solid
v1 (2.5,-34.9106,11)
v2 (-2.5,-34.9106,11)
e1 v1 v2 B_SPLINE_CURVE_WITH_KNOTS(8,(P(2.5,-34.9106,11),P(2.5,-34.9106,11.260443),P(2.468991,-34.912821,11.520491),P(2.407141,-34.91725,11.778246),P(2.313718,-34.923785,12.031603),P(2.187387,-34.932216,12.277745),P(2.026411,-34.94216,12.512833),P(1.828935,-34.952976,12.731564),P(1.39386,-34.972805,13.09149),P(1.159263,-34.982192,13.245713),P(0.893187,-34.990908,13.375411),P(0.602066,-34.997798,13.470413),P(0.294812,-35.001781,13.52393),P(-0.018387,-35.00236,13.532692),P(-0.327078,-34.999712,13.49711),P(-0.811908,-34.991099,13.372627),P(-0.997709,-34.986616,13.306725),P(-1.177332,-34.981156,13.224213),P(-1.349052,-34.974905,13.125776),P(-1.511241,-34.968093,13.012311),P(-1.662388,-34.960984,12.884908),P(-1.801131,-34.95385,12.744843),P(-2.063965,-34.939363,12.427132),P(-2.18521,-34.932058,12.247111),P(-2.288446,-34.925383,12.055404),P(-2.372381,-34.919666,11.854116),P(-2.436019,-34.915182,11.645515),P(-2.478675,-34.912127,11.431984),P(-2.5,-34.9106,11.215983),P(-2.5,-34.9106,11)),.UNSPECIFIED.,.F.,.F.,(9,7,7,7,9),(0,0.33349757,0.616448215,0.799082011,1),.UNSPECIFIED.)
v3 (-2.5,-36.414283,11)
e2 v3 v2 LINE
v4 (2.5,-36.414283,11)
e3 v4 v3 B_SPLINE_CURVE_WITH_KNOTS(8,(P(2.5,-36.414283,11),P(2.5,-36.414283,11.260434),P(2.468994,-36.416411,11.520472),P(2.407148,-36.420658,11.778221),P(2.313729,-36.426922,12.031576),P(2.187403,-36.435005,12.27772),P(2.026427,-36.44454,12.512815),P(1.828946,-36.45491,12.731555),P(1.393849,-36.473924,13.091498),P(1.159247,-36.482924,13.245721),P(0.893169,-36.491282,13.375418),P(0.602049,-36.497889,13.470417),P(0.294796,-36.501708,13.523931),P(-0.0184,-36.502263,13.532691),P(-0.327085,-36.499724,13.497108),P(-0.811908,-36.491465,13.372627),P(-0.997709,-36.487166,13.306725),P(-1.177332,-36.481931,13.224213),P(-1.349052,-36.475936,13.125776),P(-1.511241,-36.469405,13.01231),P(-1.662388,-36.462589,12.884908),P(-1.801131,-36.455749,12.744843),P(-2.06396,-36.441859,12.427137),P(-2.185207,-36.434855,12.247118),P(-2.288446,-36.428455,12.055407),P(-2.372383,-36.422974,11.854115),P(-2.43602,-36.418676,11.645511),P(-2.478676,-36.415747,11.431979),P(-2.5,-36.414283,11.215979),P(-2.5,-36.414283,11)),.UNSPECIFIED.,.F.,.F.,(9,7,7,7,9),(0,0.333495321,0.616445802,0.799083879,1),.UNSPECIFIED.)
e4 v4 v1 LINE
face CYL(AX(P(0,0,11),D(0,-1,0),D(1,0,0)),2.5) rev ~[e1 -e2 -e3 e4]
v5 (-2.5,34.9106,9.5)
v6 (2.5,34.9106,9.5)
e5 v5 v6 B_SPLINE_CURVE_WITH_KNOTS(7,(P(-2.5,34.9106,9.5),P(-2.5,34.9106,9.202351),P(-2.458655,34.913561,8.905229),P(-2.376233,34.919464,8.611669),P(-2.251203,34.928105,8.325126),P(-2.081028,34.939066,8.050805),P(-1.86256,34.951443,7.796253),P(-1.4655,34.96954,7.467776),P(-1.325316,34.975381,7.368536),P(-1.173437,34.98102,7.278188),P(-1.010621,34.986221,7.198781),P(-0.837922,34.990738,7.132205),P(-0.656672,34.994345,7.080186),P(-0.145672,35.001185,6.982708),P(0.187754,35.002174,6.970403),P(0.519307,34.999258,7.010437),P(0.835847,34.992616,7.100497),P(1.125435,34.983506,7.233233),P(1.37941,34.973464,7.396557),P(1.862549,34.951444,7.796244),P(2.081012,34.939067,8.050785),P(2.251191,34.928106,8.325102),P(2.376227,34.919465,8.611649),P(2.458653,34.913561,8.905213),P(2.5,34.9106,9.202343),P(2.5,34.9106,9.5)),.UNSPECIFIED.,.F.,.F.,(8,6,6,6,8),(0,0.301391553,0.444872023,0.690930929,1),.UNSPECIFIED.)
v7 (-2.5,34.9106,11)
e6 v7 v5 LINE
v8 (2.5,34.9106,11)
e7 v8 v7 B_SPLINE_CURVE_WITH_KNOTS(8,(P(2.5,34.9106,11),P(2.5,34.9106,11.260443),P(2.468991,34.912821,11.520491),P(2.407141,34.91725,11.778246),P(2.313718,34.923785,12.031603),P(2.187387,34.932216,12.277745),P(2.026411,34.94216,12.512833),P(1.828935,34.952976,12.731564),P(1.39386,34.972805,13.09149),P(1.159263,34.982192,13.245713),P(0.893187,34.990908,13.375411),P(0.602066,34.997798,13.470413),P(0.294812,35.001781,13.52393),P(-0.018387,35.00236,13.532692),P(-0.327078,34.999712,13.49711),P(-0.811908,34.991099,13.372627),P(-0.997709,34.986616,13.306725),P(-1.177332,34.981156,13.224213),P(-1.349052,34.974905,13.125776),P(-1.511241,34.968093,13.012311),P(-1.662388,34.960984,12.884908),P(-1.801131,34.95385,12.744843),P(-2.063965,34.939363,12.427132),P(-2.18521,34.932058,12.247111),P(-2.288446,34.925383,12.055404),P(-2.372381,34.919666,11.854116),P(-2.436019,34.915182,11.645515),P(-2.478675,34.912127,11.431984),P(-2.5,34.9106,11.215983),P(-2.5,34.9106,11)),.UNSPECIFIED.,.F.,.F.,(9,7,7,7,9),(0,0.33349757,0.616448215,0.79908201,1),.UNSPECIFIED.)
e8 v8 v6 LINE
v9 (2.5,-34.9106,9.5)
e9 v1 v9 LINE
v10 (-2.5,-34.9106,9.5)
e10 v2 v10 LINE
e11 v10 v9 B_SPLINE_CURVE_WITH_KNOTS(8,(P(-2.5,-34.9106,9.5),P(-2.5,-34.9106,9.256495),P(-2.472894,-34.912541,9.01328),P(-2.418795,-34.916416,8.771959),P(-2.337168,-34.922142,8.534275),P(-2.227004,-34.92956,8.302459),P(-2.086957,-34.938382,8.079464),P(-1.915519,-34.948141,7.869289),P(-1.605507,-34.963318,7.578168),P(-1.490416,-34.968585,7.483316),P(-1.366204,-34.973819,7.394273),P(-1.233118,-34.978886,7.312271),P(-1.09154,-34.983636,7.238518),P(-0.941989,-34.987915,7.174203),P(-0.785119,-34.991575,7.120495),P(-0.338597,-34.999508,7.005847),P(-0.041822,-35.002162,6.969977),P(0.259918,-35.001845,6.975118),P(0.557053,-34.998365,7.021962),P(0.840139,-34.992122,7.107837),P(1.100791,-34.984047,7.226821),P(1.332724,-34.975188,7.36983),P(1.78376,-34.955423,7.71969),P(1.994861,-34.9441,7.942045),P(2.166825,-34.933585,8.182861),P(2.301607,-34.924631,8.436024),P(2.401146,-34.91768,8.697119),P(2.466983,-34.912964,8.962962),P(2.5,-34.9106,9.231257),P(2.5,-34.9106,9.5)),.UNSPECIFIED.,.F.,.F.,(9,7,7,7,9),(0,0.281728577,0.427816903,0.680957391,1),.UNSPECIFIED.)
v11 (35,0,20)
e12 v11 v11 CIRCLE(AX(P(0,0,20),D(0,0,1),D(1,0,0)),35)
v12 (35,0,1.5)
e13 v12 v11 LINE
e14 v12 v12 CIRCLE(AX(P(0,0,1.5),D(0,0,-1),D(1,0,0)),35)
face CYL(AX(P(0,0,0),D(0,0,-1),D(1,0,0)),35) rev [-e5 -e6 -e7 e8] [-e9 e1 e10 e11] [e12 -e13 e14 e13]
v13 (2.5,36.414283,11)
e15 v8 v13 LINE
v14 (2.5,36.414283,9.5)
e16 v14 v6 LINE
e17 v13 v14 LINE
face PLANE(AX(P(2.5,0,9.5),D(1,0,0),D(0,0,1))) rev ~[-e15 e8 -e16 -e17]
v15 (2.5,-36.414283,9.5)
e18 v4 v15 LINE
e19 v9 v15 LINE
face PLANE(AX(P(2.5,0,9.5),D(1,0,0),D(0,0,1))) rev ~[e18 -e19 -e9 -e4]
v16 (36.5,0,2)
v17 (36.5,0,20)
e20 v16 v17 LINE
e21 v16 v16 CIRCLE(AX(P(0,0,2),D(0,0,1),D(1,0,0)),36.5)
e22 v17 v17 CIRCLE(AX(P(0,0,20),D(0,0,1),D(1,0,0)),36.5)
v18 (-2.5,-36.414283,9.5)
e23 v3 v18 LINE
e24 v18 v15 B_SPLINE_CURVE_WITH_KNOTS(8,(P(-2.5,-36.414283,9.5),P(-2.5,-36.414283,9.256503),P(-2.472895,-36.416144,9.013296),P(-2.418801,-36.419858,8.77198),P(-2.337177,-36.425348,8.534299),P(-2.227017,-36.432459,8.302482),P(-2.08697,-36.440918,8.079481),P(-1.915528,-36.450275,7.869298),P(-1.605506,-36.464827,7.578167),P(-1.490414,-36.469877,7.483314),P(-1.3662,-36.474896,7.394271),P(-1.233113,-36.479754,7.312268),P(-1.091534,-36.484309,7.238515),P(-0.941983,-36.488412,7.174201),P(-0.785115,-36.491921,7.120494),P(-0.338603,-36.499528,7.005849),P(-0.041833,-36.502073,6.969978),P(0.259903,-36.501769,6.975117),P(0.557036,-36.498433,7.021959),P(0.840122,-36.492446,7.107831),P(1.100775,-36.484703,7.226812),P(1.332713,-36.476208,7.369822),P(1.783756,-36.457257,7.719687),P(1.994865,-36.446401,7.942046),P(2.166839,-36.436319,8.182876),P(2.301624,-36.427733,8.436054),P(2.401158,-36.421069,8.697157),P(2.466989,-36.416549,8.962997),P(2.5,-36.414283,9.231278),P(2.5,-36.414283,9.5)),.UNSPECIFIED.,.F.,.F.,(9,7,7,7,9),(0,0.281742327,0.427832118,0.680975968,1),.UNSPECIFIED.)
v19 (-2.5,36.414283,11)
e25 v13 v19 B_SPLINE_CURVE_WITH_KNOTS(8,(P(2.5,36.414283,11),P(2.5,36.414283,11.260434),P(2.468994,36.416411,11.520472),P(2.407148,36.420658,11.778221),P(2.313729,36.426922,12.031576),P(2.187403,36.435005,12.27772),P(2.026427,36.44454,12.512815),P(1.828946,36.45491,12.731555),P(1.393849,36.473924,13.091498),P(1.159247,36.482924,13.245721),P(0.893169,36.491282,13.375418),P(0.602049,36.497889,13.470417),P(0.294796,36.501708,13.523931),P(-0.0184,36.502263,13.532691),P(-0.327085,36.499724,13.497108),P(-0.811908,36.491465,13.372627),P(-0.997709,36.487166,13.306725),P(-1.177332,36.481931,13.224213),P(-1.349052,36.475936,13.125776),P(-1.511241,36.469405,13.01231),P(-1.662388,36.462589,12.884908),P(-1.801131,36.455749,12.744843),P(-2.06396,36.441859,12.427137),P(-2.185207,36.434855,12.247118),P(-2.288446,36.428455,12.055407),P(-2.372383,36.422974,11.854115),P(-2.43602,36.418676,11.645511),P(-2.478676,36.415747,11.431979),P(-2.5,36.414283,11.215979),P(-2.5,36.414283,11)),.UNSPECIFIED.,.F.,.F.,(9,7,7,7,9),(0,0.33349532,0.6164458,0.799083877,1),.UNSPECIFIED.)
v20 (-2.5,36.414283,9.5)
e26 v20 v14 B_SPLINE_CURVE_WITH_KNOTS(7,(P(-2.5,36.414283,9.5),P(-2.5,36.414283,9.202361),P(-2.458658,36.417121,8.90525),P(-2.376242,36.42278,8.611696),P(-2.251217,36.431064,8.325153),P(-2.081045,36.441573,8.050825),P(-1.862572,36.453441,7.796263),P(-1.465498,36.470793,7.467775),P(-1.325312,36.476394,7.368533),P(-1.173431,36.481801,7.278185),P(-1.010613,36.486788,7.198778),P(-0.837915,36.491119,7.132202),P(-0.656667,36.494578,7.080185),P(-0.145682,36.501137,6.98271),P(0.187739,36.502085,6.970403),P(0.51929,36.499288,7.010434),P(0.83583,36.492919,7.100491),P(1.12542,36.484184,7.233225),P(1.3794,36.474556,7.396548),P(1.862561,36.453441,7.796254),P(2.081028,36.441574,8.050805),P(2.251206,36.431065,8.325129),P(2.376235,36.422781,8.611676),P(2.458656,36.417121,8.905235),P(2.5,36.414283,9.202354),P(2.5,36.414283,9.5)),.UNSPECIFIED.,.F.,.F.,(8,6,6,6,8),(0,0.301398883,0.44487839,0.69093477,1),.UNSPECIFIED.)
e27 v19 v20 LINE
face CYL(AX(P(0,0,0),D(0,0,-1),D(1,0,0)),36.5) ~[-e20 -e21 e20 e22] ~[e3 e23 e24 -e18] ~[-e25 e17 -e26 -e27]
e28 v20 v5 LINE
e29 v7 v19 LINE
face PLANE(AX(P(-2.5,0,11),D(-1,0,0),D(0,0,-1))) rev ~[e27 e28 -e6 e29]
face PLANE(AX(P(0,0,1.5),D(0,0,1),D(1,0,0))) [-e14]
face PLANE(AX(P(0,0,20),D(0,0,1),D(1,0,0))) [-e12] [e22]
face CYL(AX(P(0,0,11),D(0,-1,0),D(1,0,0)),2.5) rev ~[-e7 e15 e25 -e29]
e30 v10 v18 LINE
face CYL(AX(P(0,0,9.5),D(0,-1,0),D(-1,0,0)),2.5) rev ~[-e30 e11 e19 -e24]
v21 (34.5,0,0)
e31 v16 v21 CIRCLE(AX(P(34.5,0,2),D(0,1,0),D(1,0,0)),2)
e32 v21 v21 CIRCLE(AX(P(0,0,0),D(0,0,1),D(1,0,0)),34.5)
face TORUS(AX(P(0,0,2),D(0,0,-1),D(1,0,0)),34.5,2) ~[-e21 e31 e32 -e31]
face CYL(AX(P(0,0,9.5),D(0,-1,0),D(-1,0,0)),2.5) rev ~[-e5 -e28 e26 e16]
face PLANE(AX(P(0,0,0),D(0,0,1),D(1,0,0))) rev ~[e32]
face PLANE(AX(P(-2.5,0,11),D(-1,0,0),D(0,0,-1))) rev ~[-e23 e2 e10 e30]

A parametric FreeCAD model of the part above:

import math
import FreeCAD as App
import Part
import Sketcher
from FreeCAD import Vector
Q = App.Units.Quantity


def edges_at(feature, points):
    """Names of the edges that pass closest to the given points."""
    edges = feature.Shape.Edges
    near = lambda p: min(range(len(edges)), key=lambda i: edges[i].distToShape(Part.Vertex(*p))[0])
    return sorted({f"Edge{near(p) + 1}" for p in points})


def faces_at(feature, points):
    """Names of the faces that lie closest to the given points."""
    faces = feature.Shape.Faces
    near = lambda p: min(range(len(faces)), key=lambda i: faces[i].distToShape(Part.Vertex(*p))[0])
    return sorted({f"Face{near(p) + 1}" for p in points})

doc = App.newDocument("Part")
body = doc.addObject("PartDesign::Body", "Body")

sketch1 = doc.addObject("Sketcher::SketchObject", "Sketch")
body.addObject(sketch1)
sketch1.AttachmentSupport = (doc.XY_Plane, [""])
sketch1.MapMode = "FlatFace"
sketch1.addGeometry(Part.Circle(Vector(0, 0, 0), Vector(0, 0, 1), 36.5), False)
sketch1.addConstraint([
    Sketcher.Constraint("Coincident", 0, 3, -1, 1),
    Sketcher.Constraint("Diameter", 0, Q("73 mm")),
])
pad1 = doc.addObject("PartDesign::Pad", "Pad")
body.addObject(pad1)
pad1.Profile = sketch1
pad1.Length = 20
doc.recompute()

thickness = doc.addObject("PartDesign::Thickness", "Thickness")
body.addObject(thickness)
thickness.Base = (pad1, faces_at(pad1, [(0, 0, 20)]))
thickness.Value = 1.5
thickness.Reversed = True
thickness.Join = "Arc"
doc.recompute()

fillet = doc.addObject("PartDesign::Fillet", "Fillet")
body.addObject(fillet)
fillet.Base = (thickness, edges_at(thickness, [(-36.5, 0, 0)]))
fillet.Radius = 2

sketch2 = doc.addObject("Sketcher::SketchObject", "Sketch001")
body.addObject(sketch2)
sketch2.AttachmentSupport = (doc.XZ_Plane, [""])
sketch2.MapMode = "FlatFace"
sketch2.addGeometry([
    Part.LineSegment(Vector(-2.5, 11, 0), Vector(-2.5, 9.5, 0)),
    Part.ArcOfCircle(Part.Circle(Vector(0, 9.5, 0), Vector(0, 0, 1), 2.5), math.radians(180), math.radians(360)),
    Part.LineSegment(Vector(2.5, 9.5, 0), Vector(2.5, 11, 0)),
    Part.ArcOfCircle(Part.Circle(Vector(0, 11, 0), Vector(0, 0, 1), 2.5), math.radians(0), math.radians(180)),
], False)
sketch2.addConstraint([
    Sketcher.Constraint("Tangent", 0, 2, 1, 1),
    Sketcher.Constraint("Tangent", 1, 2, 2, 1),
    Sketcher.Constraint("Tangent", 2, 2, 3, 1),
    Sketcher.Constraint("Tangent", 3, 2, 0, 1),
    Sketcher.Constraint("Vertical", 0),
    Sketcher.Constraint("Vertical", 2),
    Sketcher.Constraint("PointOnObject", 1, 3, -2),
    Sketcher.Constraint("Radius", 1, Q("2.5 mm")),
    Sketcher.Constraint("DistanceY", 0, 2, 0, 1, Q("1.5 mm")),
    Sketcher.Constraint("DistanceY", -1, 1, 3, 3, Q("11 mm")),
])
pocket1 = doc.addObject("PartDesign::Pocket", "Pocket")
body.addObject(pocket1)
pocket1.Profile = sketch2
pocket1.Length = 100
pocket1.Midplane = True

doc.recompute()
